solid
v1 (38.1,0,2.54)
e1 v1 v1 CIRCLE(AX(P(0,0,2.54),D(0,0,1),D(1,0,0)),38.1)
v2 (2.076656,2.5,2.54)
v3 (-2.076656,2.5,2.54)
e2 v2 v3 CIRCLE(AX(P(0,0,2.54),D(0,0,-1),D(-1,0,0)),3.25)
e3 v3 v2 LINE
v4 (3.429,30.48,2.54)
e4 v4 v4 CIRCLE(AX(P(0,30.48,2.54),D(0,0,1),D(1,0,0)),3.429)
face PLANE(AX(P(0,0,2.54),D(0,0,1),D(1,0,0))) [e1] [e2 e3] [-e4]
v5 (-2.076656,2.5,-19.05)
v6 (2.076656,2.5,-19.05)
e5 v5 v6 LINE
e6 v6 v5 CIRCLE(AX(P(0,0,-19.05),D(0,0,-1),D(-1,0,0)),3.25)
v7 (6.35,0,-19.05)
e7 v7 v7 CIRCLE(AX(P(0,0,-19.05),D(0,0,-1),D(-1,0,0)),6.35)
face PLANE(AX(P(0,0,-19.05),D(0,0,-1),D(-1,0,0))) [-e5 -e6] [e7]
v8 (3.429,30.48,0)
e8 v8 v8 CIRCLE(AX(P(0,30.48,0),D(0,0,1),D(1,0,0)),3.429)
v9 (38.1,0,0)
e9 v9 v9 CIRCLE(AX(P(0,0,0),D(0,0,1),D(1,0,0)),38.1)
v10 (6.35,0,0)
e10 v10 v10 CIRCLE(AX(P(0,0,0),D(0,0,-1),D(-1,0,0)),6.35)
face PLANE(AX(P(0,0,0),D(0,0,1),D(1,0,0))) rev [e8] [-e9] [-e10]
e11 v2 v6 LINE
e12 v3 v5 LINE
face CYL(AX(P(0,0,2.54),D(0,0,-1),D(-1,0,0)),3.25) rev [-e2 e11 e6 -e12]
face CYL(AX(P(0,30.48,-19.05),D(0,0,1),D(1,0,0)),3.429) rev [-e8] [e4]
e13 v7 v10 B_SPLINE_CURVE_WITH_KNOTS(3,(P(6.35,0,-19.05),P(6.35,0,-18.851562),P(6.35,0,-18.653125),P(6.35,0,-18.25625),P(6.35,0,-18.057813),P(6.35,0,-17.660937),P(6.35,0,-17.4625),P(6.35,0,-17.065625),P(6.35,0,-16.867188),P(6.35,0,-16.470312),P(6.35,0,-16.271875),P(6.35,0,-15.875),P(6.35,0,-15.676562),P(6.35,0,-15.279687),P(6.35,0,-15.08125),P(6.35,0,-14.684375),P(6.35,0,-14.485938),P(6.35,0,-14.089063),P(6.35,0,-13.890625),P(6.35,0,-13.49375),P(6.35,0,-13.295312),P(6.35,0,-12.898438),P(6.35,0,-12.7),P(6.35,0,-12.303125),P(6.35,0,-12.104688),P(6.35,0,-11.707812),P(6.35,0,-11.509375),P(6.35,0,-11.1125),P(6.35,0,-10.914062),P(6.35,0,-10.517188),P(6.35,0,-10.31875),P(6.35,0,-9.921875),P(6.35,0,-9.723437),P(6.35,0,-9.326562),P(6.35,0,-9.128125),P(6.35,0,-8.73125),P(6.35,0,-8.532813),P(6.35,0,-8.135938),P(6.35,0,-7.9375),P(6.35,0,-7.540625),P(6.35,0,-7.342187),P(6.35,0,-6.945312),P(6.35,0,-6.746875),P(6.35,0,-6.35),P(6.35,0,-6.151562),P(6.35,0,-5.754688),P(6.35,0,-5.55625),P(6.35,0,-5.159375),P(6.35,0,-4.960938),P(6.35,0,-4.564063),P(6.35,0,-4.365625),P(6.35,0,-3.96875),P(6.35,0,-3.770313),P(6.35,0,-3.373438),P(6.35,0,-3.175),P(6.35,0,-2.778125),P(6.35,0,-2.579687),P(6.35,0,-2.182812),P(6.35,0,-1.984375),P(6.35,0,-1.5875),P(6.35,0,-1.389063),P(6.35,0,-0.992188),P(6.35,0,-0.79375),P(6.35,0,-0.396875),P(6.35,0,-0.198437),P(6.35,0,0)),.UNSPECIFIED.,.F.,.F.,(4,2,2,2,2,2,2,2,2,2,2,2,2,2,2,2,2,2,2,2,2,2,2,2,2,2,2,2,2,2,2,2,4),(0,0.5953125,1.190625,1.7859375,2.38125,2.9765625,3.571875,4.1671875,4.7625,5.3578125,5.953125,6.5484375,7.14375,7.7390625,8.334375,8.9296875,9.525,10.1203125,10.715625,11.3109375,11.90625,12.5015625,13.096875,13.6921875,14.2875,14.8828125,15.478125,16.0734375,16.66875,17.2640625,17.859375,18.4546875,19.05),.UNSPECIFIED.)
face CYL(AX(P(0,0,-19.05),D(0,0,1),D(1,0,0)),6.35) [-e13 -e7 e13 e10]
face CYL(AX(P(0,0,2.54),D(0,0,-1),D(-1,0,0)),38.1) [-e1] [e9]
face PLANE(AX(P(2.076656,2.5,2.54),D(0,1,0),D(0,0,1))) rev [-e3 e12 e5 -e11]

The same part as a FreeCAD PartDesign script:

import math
import FreeCAD as App
import Part
import Sketcher

V = App.Vector
Q = App.Units.Quantity

doc = App.newDocument("Part")
params = doc.addObject("Spreadsheet::Sheet", "Params")
for row, (alias, value) in enumerate([
    ("sketch1_diameter", "3 in"),
    ("pad1_length", "0.1 in"),
    ("sketch2_diameter", "0.5 in"),
    ("pad2_length", "0.75 in"),
    ("sketch3_diameter", "0.27 in"),
], start=1):
    params.set(f"A{row}", alias)
    params.set(f"B{row}", "=" + value)
    params.setAlias(f"B{row}", alias)

body = doc.addObject("PartDesign::Body", "Body")

sketch1 = doc.addObject("Sketcher::SketchObject", "Sketch")
body.addObject(sketch1)
sketch1.AttachmentSupport = (doc.XY_Plane, [""])
sketch1.MapMode = "FlatFace"
sketch1.addGeometry(Part.Circle(V(0, 0, 0), V(0, 0, 1), 38), False)
sketch1.addConstraint(Sketcher.Constraint("Coincident", 0, 3, -1, 1))
sketch1.addConstraint(Sketcher.Constraint("Diameter", 0, Q("3 in")))
sketch1.setExpression("Constraints[1]", "Params.sketch1_diameter")
pad1 = doc.addObject("PartDesign::Pad", "Pad")
body.addObject(pad1)
pad1.Profile = sketch1
pad1.setExpression("Length", "Params.pad1_length")

sketch2 = doc.addObject("Sketcher::SketchObject", "Sketch001")
body.addObject(sketch2)
sketch2.AttachmentSupport = (doc.XY_Plane, [""])
sketch2.MapMode = "FlatFace"
sketch2.addGeometry(Part.Circle(V(0, 0, 0), V(0, 0, 1), 6), False)
sketch2.addConstraint(Sketcher.Constraint("Coincident", 0, 3, -1, 1))
sketch2.addConstraint(Sketcher.Constraint("Diameter", 0, Q("0.5 in")))
sketch2.setExpression("Constraints[1]", "Params.sketch2_diameter")
pad2 = doc.addObject("PartDesign::Pad", "Pad001")
body.addObject(pad2)
pad2.Profile = sketch2
pad2.setExpression("Length", "Params.pad2_length")
pad2.Reversed = True

sketch3 = doc.addObject("Sketcher::SketchObject", "Sketch002")
body.addObject(sketch3)
sketch3.AttachmentSupport = (doc.XY_Plane, [""])
sketch3.MapMode = "FlatFace"
sketch3.AttachmentOffset = App.Placement(V(0, 0, 0.1 * 25.4), App.Rotation())
sketch3.addGeometry(Part.Circle(V(0, 30.5, 0), V(0, 0, 1), 3.4), False)
sketch3.addConstraint(Sketcher.Constraint("PointOnObject", 0, 3, -2))
sketch3.addConstraint(Sketcher.Constraint("Diameter", 0, Q("0.27 in")))
sketch3.addConstraint(Sketcher.Constraint("DistanceY", -1, 1, 0, 3, Q("1.2 in")))
sketch3.setExpression("Constraints[1]", "Params.sketch3_diameter")
pocket1 = doc.addObject("PartDesign::Pocket", "Pocket")
body.addObject(pocket1)
pocket1.Profile = sketch3
pocket1.Type = "ThroughAll"

sketch4 = doc.addObject("Sketcher::SketchObject", "Sketch003")
body.addObject(sketch4)
sketch4.AttachmentSupport = (doc.XY_Plane, [""])
sketch4.MapMode = "FlatFace"
sketch4.AttachmentOffset = App.Placement(V(0, 0, -0.75 * 25.4), App.Rotation())
sketch4.addGeometry(Part.LineSegment(V(-2.1, 2.5, 0), V(2.1, 2.5, 0)), False)
sketch4.addGeometry(Part.ArcOfCircle(Part.Circle(V(0, 0, 0), V(0, 0, 1), 3.2), math.radians(130), math.radians(410)), False)
sketch4.addConstraint(Sketcher.Constraint("Coincident", 0, 1, 1, 1))
sketch4.addConstraint(Sketcher.Constraint("Coincident", 1, 2, 0, 2))
sketch4.addConstraint(Sketcher.Constraint("Horizontal", 0))
sketch4.addConstraint(Sketcher.Constraint("Coincident", 1, 3, -1, 1))
sketch4.addConstraint(Sketcher.Constraint("Radius", 1, Q("3.25 mm")))
sketch4.addConstraint(Sketcher.Constraint("DistanceX", 0, 1, 0, 2, Q("4.153312 mm")))
pocket2 = doc.addObject("PartDesign::Pocket", "Pocket001")
body.addObject(pocket2)
pocket2.Profile = sketch4
pocket2.Type = "ThroughAll"
pocket2.Reversed = True

doc.recompute()
